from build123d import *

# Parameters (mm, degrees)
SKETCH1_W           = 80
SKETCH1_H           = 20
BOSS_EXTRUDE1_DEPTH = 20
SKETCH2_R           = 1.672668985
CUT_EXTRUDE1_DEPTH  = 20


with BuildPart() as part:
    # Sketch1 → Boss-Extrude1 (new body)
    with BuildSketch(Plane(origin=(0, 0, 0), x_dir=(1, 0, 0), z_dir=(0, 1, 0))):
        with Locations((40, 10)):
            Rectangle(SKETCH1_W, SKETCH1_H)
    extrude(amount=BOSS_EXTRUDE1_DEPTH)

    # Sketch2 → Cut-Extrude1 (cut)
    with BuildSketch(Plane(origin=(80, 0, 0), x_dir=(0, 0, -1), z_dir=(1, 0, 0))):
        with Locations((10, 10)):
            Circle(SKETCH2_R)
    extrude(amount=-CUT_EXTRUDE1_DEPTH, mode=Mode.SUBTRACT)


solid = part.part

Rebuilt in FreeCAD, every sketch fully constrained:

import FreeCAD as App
import Part
import Sketcher

V = App.Vector
Q = App.Units.Quantity


def add_polygon(sketch, points):
    """Adds a closed chain of lines whose ends are joined by coincident constraints."""
    first, n = sketch.GeometryCount, len(points)
    for a, b in zip(points, points[1:] + points[:1]):
        sketch.addGeometry(Part.LineSegment(App.Vector(*a, 0), App.Vector(*b, 0)), False)
    for i in range(n):
        sketch.addConstraint(Sketcher.Constraint("Coincident", first + i, 2, first + (i + 1) % n, 1))

doc = App.newDocument("Part")
body = doc.addObject("PartDesign::Body", "Body")

sketch1 = body.newObject("Sketcher::SketchObject", "Sketch")
sketch1.AttachmentSupport = (doc.getObject("XZ_Plane"), [""])
sketch1.MapMode = "FlatFace"
add_polygon(sketch1, [(0, -20), (0, 0), (80, 0), (80, -20)])
sketch1.addConstraint(Sketcher.Constraint("Vertical", 0))
sketch1.addConstraint(Sketcher.Constraint("Horizontal", 1))
sketch1.addConstraint(Sketcher.Constraint("Vertical", 2))
sketch1.addConstraint(Sketcher.Constraint("Horizontal", 3))
sketch1.addConstraint(Sketcher.Constraint("Coincident", 0, 2, -1, 1))
sketch1.addConstraint(Sketcher.Constraint("DistanceX", 1, 1, 1, 2, Q("80 mm")))
sketch1.addConstraint(Sketcher.Constraint("DistanceY", 0, 1, 0, 2, Q("20 mm")))
pad1 = body.newObject("PartDesign::Pad", "Pad")
pad1.Profile = sketch1
pad1.Length = 20
pad1.Reversed = True

sketch2 = body.newObject("Sketcher::SketchObject", "Sketch001")
sketch2.AttachmentSupport = (doc.getObject("YZ_Plane"), [""])
sketch2.MapMode = "FlatFace"
sketch2.AttachmentOffset = App.Placement(V(0, 0, 80), App.Rotation())
sketch2.addGeometry(Part.Circle(V(10, -10, 0), V(0, 0, 1), 1.7), False)
sketch2.addConstraint(Sketcher.Constraint("DistanceX", -1, 1, 0, 3, Q("10 mm")))
sketch2.addConstraint(Sketcher.Constraint("DistanceY", 0, 3, -1, 1, Q("10 mm")))
sketch2.addConstraint(Sketcher.Constraint("Diameter", 0, Q("3.345338 mm")))
pocket1 = body.newObject("PartDesign::Pocket", "Pocket")
pocket1.Profile = sketch2
pocket1.Length = 20

doc.recompute()
